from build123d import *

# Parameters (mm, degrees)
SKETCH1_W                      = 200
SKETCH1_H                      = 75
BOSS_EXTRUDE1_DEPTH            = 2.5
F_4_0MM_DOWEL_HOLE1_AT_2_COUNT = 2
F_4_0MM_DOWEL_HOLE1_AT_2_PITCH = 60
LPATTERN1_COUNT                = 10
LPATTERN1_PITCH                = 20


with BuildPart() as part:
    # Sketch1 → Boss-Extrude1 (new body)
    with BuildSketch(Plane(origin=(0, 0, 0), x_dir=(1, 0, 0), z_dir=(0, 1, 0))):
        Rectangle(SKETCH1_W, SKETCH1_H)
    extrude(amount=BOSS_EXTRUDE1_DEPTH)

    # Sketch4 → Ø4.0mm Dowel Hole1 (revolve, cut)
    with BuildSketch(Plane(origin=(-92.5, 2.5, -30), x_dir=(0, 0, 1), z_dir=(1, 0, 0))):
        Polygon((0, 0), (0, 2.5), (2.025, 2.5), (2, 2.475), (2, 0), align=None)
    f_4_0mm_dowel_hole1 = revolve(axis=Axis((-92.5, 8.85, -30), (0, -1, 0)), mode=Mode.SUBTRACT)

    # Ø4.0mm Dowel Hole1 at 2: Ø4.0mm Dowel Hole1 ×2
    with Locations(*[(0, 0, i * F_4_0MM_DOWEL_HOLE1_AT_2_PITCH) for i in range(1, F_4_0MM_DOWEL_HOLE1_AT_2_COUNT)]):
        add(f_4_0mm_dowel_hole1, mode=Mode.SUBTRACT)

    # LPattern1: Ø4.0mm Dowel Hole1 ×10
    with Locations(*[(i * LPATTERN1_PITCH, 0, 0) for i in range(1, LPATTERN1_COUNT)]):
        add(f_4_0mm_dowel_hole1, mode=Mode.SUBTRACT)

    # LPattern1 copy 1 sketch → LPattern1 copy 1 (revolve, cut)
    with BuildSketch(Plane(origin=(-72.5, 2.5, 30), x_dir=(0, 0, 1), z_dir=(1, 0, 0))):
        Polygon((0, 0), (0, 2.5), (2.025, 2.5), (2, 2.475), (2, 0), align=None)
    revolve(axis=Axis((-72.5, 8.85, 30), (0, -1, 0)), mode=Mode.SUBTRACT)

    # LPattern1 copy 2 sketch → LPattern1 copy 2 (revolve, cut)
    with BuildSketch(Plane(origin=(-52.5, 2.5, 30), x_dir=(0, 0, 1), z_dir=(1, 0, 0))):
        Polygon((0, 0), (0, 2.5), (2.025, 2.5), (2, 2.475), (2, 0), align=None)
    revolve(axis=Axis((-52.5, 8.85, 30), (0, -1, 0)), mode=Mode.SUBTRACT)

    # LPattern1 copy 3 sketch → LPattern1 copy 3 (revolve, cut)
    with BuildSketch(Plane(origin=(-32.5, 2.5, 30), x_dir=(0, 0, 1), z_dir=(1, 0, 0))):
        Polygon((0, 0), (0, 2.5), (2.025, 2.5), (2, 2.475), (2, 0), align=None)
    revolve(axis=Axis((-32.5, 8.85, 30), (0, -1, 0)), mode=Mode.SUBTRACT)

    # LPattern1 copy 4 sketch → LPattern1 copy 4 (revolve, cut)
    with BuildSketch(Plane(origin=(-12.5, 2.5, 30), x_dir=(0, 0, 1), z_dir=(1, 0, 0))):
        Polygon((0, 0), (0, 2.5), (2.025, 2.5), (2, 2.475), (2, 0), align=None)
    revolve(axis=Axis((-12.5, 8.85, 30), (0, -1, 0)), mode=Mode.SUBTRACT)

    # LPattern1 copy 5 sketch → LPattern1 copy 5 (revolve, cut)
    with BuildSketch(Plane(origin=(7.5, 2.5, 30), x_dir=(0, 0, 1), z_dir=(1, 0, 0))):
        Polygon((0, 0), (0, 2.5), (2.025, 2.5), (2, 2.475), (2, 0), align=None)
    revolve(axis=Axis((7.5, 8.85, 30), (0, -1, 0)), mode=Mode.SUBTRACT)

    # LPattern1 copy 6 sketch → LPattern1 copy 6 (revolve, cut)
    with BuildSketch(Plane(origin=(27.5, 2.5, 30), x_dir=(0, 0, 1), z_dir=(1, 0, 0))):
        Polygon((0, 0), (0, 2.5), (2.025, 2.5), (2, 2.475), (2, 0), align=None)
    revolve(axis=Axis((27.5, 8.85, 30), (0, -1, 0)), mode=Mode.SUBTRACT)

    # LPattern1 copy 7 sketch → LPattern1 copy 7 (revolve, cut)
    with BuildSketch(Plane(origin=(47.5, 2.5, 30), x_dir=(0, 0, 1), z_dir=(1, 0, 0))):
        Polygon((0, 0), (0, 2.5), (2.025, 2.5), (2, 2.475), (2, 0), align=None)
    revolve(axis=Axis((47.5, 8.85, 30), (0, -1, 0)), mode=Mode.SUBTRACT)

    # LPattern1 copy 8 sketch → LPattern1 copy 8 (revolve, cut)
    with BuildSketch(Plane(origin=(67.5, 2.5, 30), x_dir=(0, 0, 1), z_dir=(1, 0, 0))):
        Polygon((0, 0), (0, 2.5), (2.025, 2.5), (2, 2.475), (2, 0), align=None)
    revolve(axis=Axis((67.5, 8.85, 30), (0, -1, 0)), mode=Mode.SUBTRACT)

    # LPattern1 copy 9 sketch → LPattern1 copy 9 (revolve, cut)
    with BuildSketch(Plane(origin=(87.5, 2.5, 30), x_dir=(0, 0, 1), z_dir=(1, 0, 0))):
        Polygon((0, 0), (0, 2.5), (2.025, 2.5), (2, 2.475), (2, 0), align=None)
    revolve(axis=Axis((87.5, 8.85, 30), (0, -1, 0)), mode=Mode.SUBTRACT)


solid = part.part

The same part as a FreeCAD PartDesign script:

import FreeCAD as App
import Part
import Sketcher
from FreeCAD import Vector
Q = App.Units.Quantity

doc = App.newDocument("Part")
body = doc.addObject("PartDesign::Body", "Body")

# Sketch on XZ plane
sketch1 = body.newObject("Sketcher::SketchObject", "Sketch")
sketch1.AttachmentSupport = (doc.getObject("XZ_Plane"), [""])
sketch1.MapMode = "FlatFace"
sketch1.addGeometry([
    Part.LineSegment(Vector(-100, -37.5, 0), Vector(-100, 37.5, 0)),
    Part.LineSegment(Vector(-100, 37.5, 0), Vector(100, 37.5, 0)),
    Part.LineSegment(Vector(100, 37.5, 0), Vector(100, -37.5, 0)),
    Part.LineSegment(Vector(100, -37.5, 0), Vector(-100, -37.5, 0)),
], False)
sketch1.addConstraint([
    Sketcher.Constraint("Coincident", 0, 2, 1, 1),
    Sketcher.Constraint("Coincident", 1, 2, 2, 1),
    Sketcher.Constraint("Coincident", 2, 2, 3, 1),
    Sketcher.Constraint("Coincident", 3, 2, 0, 1),
    Sketcher.Constraint("Vertical", 0),
    Sketcher.Constraint("Horizontal", 1),
    Sketcher.Constraint("Vertical", 2),
    Sketcher.Constraint("Horizontal", 3),
    Sketcher.Constraint("Symmetric", 0, 2, 2, 2, -1, 1),
    Sketcher.Constraint("DistanceX", 1, 1, 1, 2, 200.0),
    Sketcher.Constraint("DistanceY", 0, 1, 0, 2, 75.0),
])
pad1 = body.newObject("PartDesign::Pad", "Pad")
pad1.Profile = sketch1
pad1.Length = 2.5
pad1.Reversed = True

# Sketch on YZ plane
sketch2 = body.newObject("Sketcher::SketchObject", "Sketch001")
sketch2.AttachmentSupport = (doc.getObject("YZ_Plane"), [""])
sketch2.MapMode = "FlatFace"
sketch2.AttachmentOffset = App.Placement(Vector(0, 0, -92.5), App.Rotation())
sketch2.addGeometry([
    Part.LineSegment(Vector(0, -30, 0), Vector(2.5, -30, 0)),  # 0
    Part.LineSegment(Vector(2.5, -30, 0), Vector(2.5, -28, 0)),  # 1
    Part.LineSegment(Vector(2.5, -28, 0), Vector(0.025, -28, 0)),  # 2
    Part.LineSegment(Vector(0.025, -28, 0), Vector(0, -27.975, 0)),  # 3
    Part.LineSegment(Vector(0, -27.975, 0), Vector(0, -30, 0)),  # 4
], False)
sketch2.addGeometry(Part.LineSegment(Vector(2.5, -30, 0), Vector(0, -30, 0)), True)  # axis
sketch2.addConstraint([
    Sketcher.Constraint("Coincident", 0, 2, 1, 1),
    Sketcher.Constraint("Coincident", 1, 2, 2, 1),
    Sketcher.Constraint("Coincident", 2, 2, 3, 1),
    Sketcher.Constraint("Coincident", 3, 2, 4, 1),
    Sketcher.Constraint("Coincident", 4, 2, 0, 1),
    Sketcher.Constraint("Horizontal", 0),
    Sketcher.Constraint("Vertical", 1),
    Sketcher.Constraint("Horizontal", 2),
    Sketcher.Constraint("Vertical", 4),
    Sketcher.Constraint("Horizontal", 5),
    Sketcher.Constraint("Coincident", 5, 1, 0, 2),
    Sketcher.Constraint("PointOnObject", 3, 2, -2),
    Sketcher.Constraint("PointOnObject", 5, 2, -2),
    Sketcher.Constraint("DistanceY", 1, 1, 1, 2, 2.0),
    Sketcher.Constraint("Angle", 3, Q("135 deg")),
    Sketcher.Constraint("DistanceX", 0, 1, 0, 2, 2.5),
    Sketcher.Constraint("DistanceY", 0, 2, -1, 1, 30.0),
    Sketcher.Constraint("DistanceX", 2, 2, 2, 1, 2.475),
])
groove = body.newObject("PartDesign::Groove", "Groove")
groove.Profile = sketch2
groove.ReferenceAxis = (sketch2, ["Axis0"])
groove.Angle = 360
doc.recompute()

linearpattern = body.newObject("PartDesign::LinearPattern", "LinearPattern")
linearpattern.Originals = [groove]
linearpattern.Direction = (doc.getObject("Z_Axis"), [""])
linearpattern.Mode = "offset"
linearpattern.Offset = 60
linearpattern.Occurrences = 2
body.Tip = linearpattern
doc.recompute()

linearpattern2 = body.newObject("PartDesign::LinearPattern", "LinearPattern001")
linearpattern2.Originals = [groove]
linearpattern2.Direction = (doc.getObject("X_Axis"), [""])
linearpattern2.Mode = "offset"
linearpattern2.Offset = 20
linearpattern2.Occurrences = 10
body.Tip = linearpattern2

# Sketch on YZ plane
sketch3 = body.newObject("Sketcher::SketchObject", "Sketch002")
sketch3.AttachmentSupport = (doc.getObject("YZ_Plane"), [""])
sketch3.MapMode = "FlatFace"
sketch3.AttachmentOffset = App.Placement(Vector(0, 0, -72.5), App.Rotation())
sketch3.addGeometry([
    Part.LineSegment(Vector(0, 30, 0), Vector(2.5, 30, 0)),  # 0
    Part.LineSegment(Vector(2.5, 30, 0), Vector(2.5, 32, 0)),  # 1
    Part.LineSegment(Vector(2.5, 32, 0), Vector(0.025, 32, 0)),  # 2
    Part.LineSegment(Vector(0.025, 32, 0), Vector(0, 32.025, 0)),  # 3
    Part.LineSegment(Vector(0, 32.025, 0), Vector(0, 30, 0)),  # 4
], False)
sketch3.addGeometry(Part.LineSegment(Vector(2.5, 30, 0), Vector(0, 30, 0)), True)  # axis
sketch3.addConstraint([
    Sketcher.Constraint("Coincident", 0, 2, 1, 1),
    Sketcher.Constraint("Coincident", 1, 2, 2, 1),
    Sketcher.Constraint("Coincident", 2, 2, 3, 1),
    Sketcher.Constraint("Coincident", 3, 2, 4, 1),
    Sketcher.Constraint("Coincident", 4, 2, 0, 1),
    Sketcher.Constraint("Horizontal", 0),
    Sketcher.Constraint("Vertical", 1),
    Sketcher.Constraint("Horizontal", 2),
    Sketcher.Constraint("Vertical", 4),
    Sketcher.Constraint("Horizontal", 5),
    Sketcher.Constraint("Coincident", 5, 1, 0, 2),
    Sketcher.Constraint("PointOnObject", 3, 2, -2),
    Sketcher.Constraint("PointOnObject", 5, 2, -2),
    Sketcher.Constraint("DistanceY", 1, 1, 1, 2, 2.0),
    Sketcher.Constraint("Angle", 3, Q("135 deg")),
    Sketcher.Constraint("DistanceX", 0, 1, 0, 2, 2.5),
    Sketcher.Constraint("DistanceY", -1, 1, 0, 2, 30.0),
    Sketcher.Constraint("DistanceX", 2, 2, 2, 1, 2.475),
])
groove2 = body.newObject("PartDesign::Groove", "Groove001")
groove2.Profile = sketch3
groove2.ReferenceAxis = (sketch3, ["Axis0"])
groove2.Angle = 360

# Sketch on YZ plane
sketch4 = body.newObject("Sketcher::SketchObject", "Sketch003")
sketch4.AttachmentSupport = (doc.getObject("YZ_Plane"), [""])
sketch4.MapMode = "FlatFace"
sketch4.AttachmentOffset = App.Placement(Vector(0, 0, -52.5), App.Rotation())
sketch4.addGeometry([
    Part.LineSegment(Vector(0, 30, 0), Vector(2.5, 30, 0)),  # 0
    Part.LineSegment(Vector(2.5, 30, 0), Vector(2.5, 32, 0)),  # 1
    Part.LineSegment(Vector(2.5, 32, 0), Vector(0.025, 32, 0)),  # 2
    Part.LineSegment(Vector(0.025, 32, 0), Vector(0, 32.025, 0)),  # 3
    Part.LineSegment(Vector(0, 32.025, 0), Vector(0, 30, 0)),  # 4
], False)
sketch4.addGeometry(Part.LineSegment(Vector(2.5, 30, 0), Vector(0, 30, 0)), True)  # axis
sketch4.addConstraint([
    Sketcher.Constraint("Coincident", 0, 2, 1, 1),
    Sketcher.Constraint("Coincident", 1, 2, 2, 1),
    Sketcher.Constraint("Coincident", 2, 2, 3, 1),
    Sketcher.Constraint("Coincident", 3, 2, 4, 1),
    Sketcher.Constraint("Coincident", 4, 2, 0, 1),
    Sketcher.Constraint("Horizontal", 0),
    Sketcher.Constraint("Vertical", 1),
    Sketcher.Constraint("Horizontal", 2),
    Sketcher.Constraint("Vertical", 4),
    Sketcher.Constraint("Horizontal", 5),
    Sketcher.Constraint("Coincident", 5, 1, 0, 2),
    Sketcher.Constraint("PointOnObject", 3, 2, -2),
    Sketcher.Constraint("PointOnObject", 5, 2, -2),
    Sketcher.Constraint("DistanceY", 1, 1, 1, 2, 2.0),
    Sketcher.Constraint("Angle", 3, Q("135 deg")),
    Sketcher.Constraint("DistanceX", 0, 1, 0, 2, 2.5),
    Sketcher.Constraint("DistanceY", -1, 1, 0, 2, 30.0),
    Sketcher.Constraint("DistanceX", 2, 2, 2, 1, 2.475),
])
groove3 = body.newObject("PartDesign::Groove", "Groove002")
groove3.Profile = sketch4
groove3.ReferenceAxis = (sketch4, ["Axis0"])
groove3.Angle = 360

# Sketch on YZ plane
sketch5 = body.newObject("Sketcher::SketchObject", "Sketch004")
sketch5.AttachmentSupport = (doc.getObject("YZ_Plane"), [""])
sketch5.MapMode = "FlatFace"
sketch5.AttachmentOffset = App.Placement(Vector(0, 0, -32.5), App.Rotation())
sketch5.addGeometry([
    Part.LineSegment(Vector(0, 30, 0), Vector(2.5, 30, 0)),  # 0
    Part.LineSegment(Vector(2.5, 30, 0), Vector(2.5, 32, 0)),  # 1
    Part.LineSegment(Vector(2.5, 32, 0), Vector(0.025, 32, 0)),  # 2
    Part.LineSegment(Vector(0.025, 32, 0), Vector(0, 32.025, 0)),  # 3
    Part.LineSegment(Vector(0, 32.025, 0), Vector(0, 30, 0)),  # 4
], False)
sketch5.addGeometry(Part.LineSegment(Vector(2.5, 30, 0), Vector(0, 30, 0)), True)  # axis
sketch5.addConstraint([
    Sketcher.Constraint("Coincident", 0, 2, 1, 1),
    Sketcher.Constraint("Coincident", 1, 2, 2, 1),
    Sketcher.Constraint("Coincident", 2, 2, 3, 1),
    Sketcher.Constraint("Coincident", 3, 2, 4, 1),
    Sketcher.Constraint("Coincident", 4, 2, 0, 1),
    Sketcher.Constraint("Horizontal", 0),
    Sketcher.Constraint("Vertical", 1),
    Sketcher.Constraint("Horizontal", 2),
    Sketcher.Constraint("Vertical", 4),
    Sketcher.Constraint("Horizontal", 5),
    Sketcher.Constraint("Coincident", 5, 1, 0, 2),
    Sketcher.Constraint("PointOnObject", 3, 2, -2),
    Sketcher.Constraint("PointOnObject", 5, 2, -2),
    Sketcher.Constraint("DistanceY", 1, 1, 1, 2, 2.0),
    Sketcher.Constraint("Angle", 3, Q("135 deg")),
    Sketcher.Constraint("DistanceX", 0, 1, 0, 2, 2.5),
    Sketcher.Constraint("DistanceY", -1, 1, 0, 2, 30.0),
    Sketcher.Constraint("DistanceX", 2, 2, 2, 1, 2.475),
])
groove4 = body.newObject("PartDesign::Groove", "Groove003")
groove4.Profile = sketch5
groove4.ReferenceAxis = (sketch5, ["Axis0"])
groove4.Angle = 360

# Sketch on YZ plane
sketch6 = body.newObject("Sketcher::SketchObject", "Sketch005")
sketch6.AttachmentSupport = (doc.getObject("YZ_Plane"), [""])
sketch6.MapMode = "FlatFace"
sketch6.AttachmentOffset = App.Placement(Vector(0, 0, -12.5), App.Rotation())
sketch6.addGeometry([
    Part.LineSegment(Vector(0, 30, 0), Vector(2.5, 30, 0)),  # 0
    Part.LineSegment(Vector(2.5, 30, 0), Vector(2.5, 32, 0)),  # 1
    Part.LineSegment(Vector(2.5, 32, 0), Vector(0.025, 32, 0)),  # 2
    Part.LineSegment(Vector(0.025, 32, 0), Vector(0, 32.025, 0)),  # 3
    Part.LineSegment(Vector(0, 32.025, 0), Vector(0, 30, 0)),  # 4
], False)
sketch6.addGeometry(Part.LineSegment(Vector(2.5, 30, 0), Vector(0, 30, 0)), True)  # axis
sketch6.addConstraint([
    Sketcher.Constraint("Coincident", 0, 2, 1, 1),
    Sketcher.Constraint("Coincident", 1, 2, 2, 1),
    Sketcher.Constraint("Coincident", 2, 2, 3, 1),
    Sketcher.Constraint("Coincident", 3, 2, 4, 1),
    Sketcher.Constraint("Coincident", 4, 2, 0, 1),
    Sketcher.Constraint("Horizontal", 0),
    Sketcher.Constraint("Vertical", 1),
    Sketcher.Constraint("Horizontal", 2),
    Sketcher.Constraint("Vertical", 4),
    Sketcher.Constraint("Horizontal", 5),
    Sketcher.Constraint("Coincident", 5, 1, 0, 2),
    Sketcher.Constraint("PointOnObject", 3, 2, -2),
    Sketcher.Constraint("PointOnObject", 5, 2, -2),
    Sketcher.Constraint("DistanceY", 1, 1, 1, 2, 2.0),
    Sketcher.Constraint("Angle", 3, Q("135 deg")),
    Sketcher.Constraint("DistanceX", 0, 1, 0, 2, 2.5),
    Sketcher.Constraint("DistanceY", -1, 1, 0, 2, 30.0),
    Sketcher.Constraint("DistanceX", 2, 2, 2, 1, 2.475),
])
groove5 = body.newObject("PartDesign::Groove", "Groove004")
groove5.Profile = sketch6
groove5.ReferenceAxis = (sketch6, ["Axis0"])
groove5.Angle = 360

# Sketch on YZ plane
sketch7 = body.newObject("Sketcher::SketchObject", "Sketch006")
sketch7.AttachmentSupport = (doc.getObject("YZ_Plane"), [""])
sketch7.MapMode = "FlatFace"
sketch7.AttachmentOffset = App.Placement(Vector(0, 0, 7.5), App.Rotation())
sketch7.addGeometry([
    Part.LineSegment(Vector(0, 30, 0), Vector(2.5, 30, 0)),  # 0
    Part.LineSegment(Vector(2.5, 30, 0), Vector(2.5, 32, 0)),  # 1
    Part.LineSegment(Vector(2.5, 32, 0), Vector(0.025, 32, 0)),  # 2
    Part.LineSegment(Vector(0.025, 32, 0), Vector(0, 32.025, 0)),  # 3
    Part.LineSegment(Vector(0, 32.025, 0), Vector(0, 30, 0)),  # 4
], False)
sketch7.addGeometry(Part.LineSegment(Vector(2.5, 30, 0), Vector(0, 30, 0)), True)  # axis
sketch7.addConstraint([
    Sketcher.Constraint("Coincident", 0, 2, 1, 1),
    Sketcher.Constraint("Coincident", 1, 2, 2, 1),
    Sketcher.Constraint("Coincident", 2, 2, 3, 1),
    Sketcher.Constraint("Coincident", 3, 2, 4, 1),
    Sketcher.Constraint("Coincident", 4, 2, 0, 1),
    Sketcher.Constraint("Horizontal", 0),
    Sketcher.Constraint("Vertical", 1),
    Sketcher.Constraint("Horizontal", 2),
    Sketcher.Constraint("Vertical", 4),
    Sketcher.Constraint("Horizontal", 5),
    Sketcher.Constraint("Coincident", 5, 1, 0, 2),
    Sketcher.Constraint("PointOnObject", 3, 2, -2),
    Sketcher.Constraint("PointOnObject", 5, 2, -2),
    Sketcher.Constraint("DistanceY", 1, 1, 1, 2, 2.0),
    Sketcher.Constraint("Angle", 3, Q("135 deg")),
    Sketcher.Constraint("DistanceX", 0, 1, 0, 2, 2.5),
    Sketcher.Constraint("DistanceY", -1, 1, 0, 2, 30.0),
    Sketcher.Constraint("DistanceX", 2, 2, 2, 1, 2.475),
])
groove6 = body.newObject("PartDesign::Groove", "Groove005")
groove6.Profile = sketch7
groove6.ReferenceAxis = (sketch7, ["Axis0"])
groove6.Angle = 360

# Sketch on YZ plane
sketch8 = body.newObject("Sketcher::SketchObject", "Sketch007")
sketch8.AttachmentSupport = (doc.getObject("YZ_Plane"), [""])
sketch8.MapMode = "FlatFace"
sketch8.AttachmentOffset = App.Placement(Vector(0, 0, 27.5), App.Rotation())
sketch8.addGeometry([
    Part.LineSegment(Vector(0, 30, 0), Vector(2.5, 30, 0)),  # 0
    Part.LineSegment(Vector(2.5, 30, 0), Vector(2.5, 32, 0)),  # 1
    Part.LineSegment(Vector(2.5, 32, 0), Vector(0.025, 32, 0)),  # 2
    Part.LineSegment(Vector(0.025, 32, 0), Vector(0, 32.025, 0)),  # 3
    Part.LineSegment(Vector(0, 32.025, 0), Vector(0, 30, 0)),  # 4
], False)
sketch8.addGeometry(Part.LineSegment(Vector(2.5, 30, 0), Vector(0, 30, 0)), True)  # axis
sketch8.addConstraint([
    Sketcher.Constraint("Coincident", 0, 2, 1, 1),
    Sketcher.Constraint("Coincident", 1, 2, 2, 1),
    Sketcher.Constraint("Coincident", 2, 2, 3, 1),
    Sketcher.Constraint("Coincident", 3, 2, 4, 1),
    Sketcher.Constraint("Coincident", 4, 2, 0, 1),
    Sketcher.Constraint("Horizontal", 0),
    Sketcher.Constraint("Vertical", 1),
    Sketcher.Constraint("Horizontal", 2),
    Sketcher.Constraint("Vertical", 4),
    Sketcher.Constraint("Horizontal", 5),
    Sketcher.Constraint("Coincident", 5, 1, 0, 2),
    Sketcher.Constraint("PointOnObject", 3, 2, -2),
    Sketcher.Constraint("PointOnObject", 5, 2, -2),
    Sketcher.Constraint("DistanceY", 1, 1, 1, 2, 2.0),
    Sketcher.Constraint("Angle", 3, Q("135 deg")),
    Sketcher.Constraint("DistanceX", 0, 1, 0, 2, 2.5),
    Sketcher.Constraint("DistanceY", -1, 1, 0, 2, 30.0),
    Sketcher.Constraint("DistanceX", 2, 2, 2, 1, 2.475),
])
groove7 = body.newObject("PartDesign::Groove", "Groove006")
groove7.Profile = sketch8
groove7.ReferenceAxis = (sketch8, ["Axis0"])
groove7.Angle = 360

# Sketch on YZ plane
sketch9 = body.newObject("Sketcher::SketchObject", "Sketch008")
sketch9.AttachmentSupport = (doc.getObject("YZ_Plane"), [""])
sketch9.MapMode = "FlatFace"
sketch9.AttachmentOffset = App.Placement(Vector(0, 0, 47.5), App.Rotation())
sketch9.addGeometry([
    Part.LineSegment(Vector(0, 30, 0), Vector(2.5, 30, 0)),  # 0
    Part.LineSegment(Vector(2.5, 30, 0), Vector(2.5, 32, 0)),  # 1
    Part.LineSegment(Vector(2.5, 32, 0), Vector(0.025, 32, 0)),  # 2
    Part.LineSegment(Vector(0.025, 32, 0), Vector(0, 32.025, 0)),  # 3
    Part.LineSegment(Vector(0, 32.025, 0), Vector(0, 30, 0)),  # 4
], False)
sketch9.addGeometry(Part.LineSegment(Vector(2.5, 30, 0), Vector(0, 30, 0)), True)  # axis
sketch9.addConstraint([
    Sketcher.Constraint("Coincident", 0, 2, 1, 1),
    Sketcher.Constraint("Coincident", 1, 2, 2, 1),
    Sketcher.Constraint("Coincident", 2, 2, 3, 1),
    Sketcher.Constraint("Coincident", 3, 2, 4, 1),
    Sketcher.Constraint("Coincident", 4, 2, 0, 1),
    Sketcher.Constraint("Horizontal", 0),
    Sketcher.Constraint("Vertical", 1),
    Sketcher.Constraint("Horizontal", 2),
    Sketcher.Constraint("Vertical", 4),
    Sketcher.Constraint("Horizontal", 5),
    Sketcher.Constraint("Coincident", 5, 1, 0, 2),
    Sketcher.Constraint("PointOnObject", 3, 2, -2),
    Sketcher.Constraint("PointOnObject", 5, 2, -2),
    Sketcher.Constraint("DistanceY", 1, 1, 1, 2, 2.0),
    Sketcher.Constraint("Angle", 3, Q("135 deg")),
    Sketcher.Constraint("DistanceX", 0, 1, 0, 2, 2.5),
    Sketcher.Constraint("DistanceY", -1, 1, 0, 2, 30.0),
    Sketcher.Constraint("DistanceX", 2, 2, 2, 1, 2.475),
])
groove8 = body.newObject("PartDesign::Groove", "Groove007")
groove8.Profile = sketch9
groove8.ReferenceAxis = (sketch9, ["Axis0"])
groove8.Angle = 360

# Sketch on YZ plane
sketch10 = body.newObject("Sketcher::SketchObject", "Sketch009")
sketch10.AttachmentSupport = (doc.getObject("YZ_Plane"), [""])
sketch10.MapMode = "FlatFace"
sketch10.AttachmentOffset = App.Placement(Vector(0, 0, 67.5), App.Rotation())
sketch10.addGeometry([
    Part.LineSegment(Vector(0, 30, 0), Vector(2.5, 30, 0)),  # 0
    Part.LineSegment(Vector(2.5, 30, 0), Vector(2.5, 32, 0)),  # 1
    Part.LineSegment(Vector(2.5, 32, 0), Vector(0.025, 32, 0)),  # 2
    Part.LineSegment(Vector(0.025, 32, 0), Vector(0, 32.025, 0)),  # 3
    Part.LineSegment(Vector(0, 32.025, 0), Vector(0, 30, 0)),  # 4
], False)
sketch10.addGeometry(Part.LineSegment(Vector(2.5, 30, 0), Vector(0, 30, 0)), True)  # axis
sketch10.addConstraint([
    Sketcher.Constraint("Coincident", 0, 2, 1, 1),
    Sketcher.Constraint("Coincident", 1, 2, 2, 1),
    Sketcher.Constraint("Coincident", 2, 2, 3, 1),
    Sketcher.Constraint("Coincident", 3, 2, 4, 1),
    Sketcher.Constraint("Coincident", 4, 2, 0, 1),
    Sketcher.Constraint("Horizontal", 0),
    Sketcher.Constraint("Vertical", 1),
    Sketcher.Constraint("Horizontal", 2),
    Sketcher.Constraint("Vertical", 4),
    Sketcher.Constraint("Horizontal", 5),
    Sketcher.Constraint("Coincident", 5, 1, 0, 2),
    Sketcher.Constraint("PointOnObject", 3, 2, -2),
    Sketcher.Constraint("PointOnObject", 5, 2, -2),
    Sketcher.Constraint("DistanceY", 1, 1, 1, 2, 2.0),
    Sketcher.Constraint("Angle", 3, Q("135 deg")),
    Sketcher.Constraint("DistanceX", 0, 1, 0, 2, 2.5),
    Sketcher.Constraint("DistanceY", -1, 1, 0, 2, 30.0),
    Sketcher.Constraint("DistanceX", 2, 2, 2, 1, 2.475),
])
groove9 = body.newObject("PartDesign::Groove", "Groove008")
groove9.Profile = sketch10
groove9.ReferenceAxis = (sketch10, ["Axis0"])
groove9.Angle = 360

# Sketch on YZ plane
sketch11 = body.newObject("Sketcher::SketchObject", "Sketch010")
sketch11.AttachmentSupport = (doc.getObject("YZ_Plane"), [""])
sketch11.MapMode = "FlatFace"
sketch11.AttachmentOffset = App.Placement(Vector(0, 0, 87.5), App.Rotation())
sketch11.addGeometry([
    Part.LineSegment(Vector(0, 30, 0), Vector(2.5, 30, 0)),  # 0
    Part.LineSegment(Vector(2.5, 30, 0), Vector(2.5, 32, 0)),  # 1
    Part.LineSegment(Vector(2.5, 32, 0), Vector(0.025, 32, 0)),  # 2
    Part.LineSegment(Vector(0.025, 32, 0), Vector(0, 32.025, 0)),  # 3
    Part.LineSegment(Vector(0, 32.025, 0), Vector(0, 30, 0)),  # 4
], False)
sketch11.addGeometry(Part.LineSegment(Vector(2.5, 30, 0), Vector(0, 30, 0)), True)  # axis
sketch11.addConstraint([
    Sketcher.Constraint("Coincident", 0, 2, 1, 1),
    Sketcher.Constraint("Coincident", 1, 2, 2, 1),
    Sketcher.Constraint("Coincident", 2, 2, 3, 1),
    Sketcher.Constraint("Coincident", 3, 2, 4, 1),
    Sketcher.Constraint("Coincident", 4, 2, 0, 1),
    Sketcher.Constraint("Horizontal", 0),
    Sketcher.Constraint("Vertical", 1),
    Sketcher.Constraint("Horizontal", 2),
    Sketcher.Constraint("Vertical", 4),
    Sketcher.Constraint("Horizontal", 5),
    Sketcher.Constraint("Coincident", 5, 1, 0, 2),
    Sketcher.Constraint("PointOnObject", 3, 2, -2),
    Sketcher.Constraint("PointOnObject", 5, 2, -2),
    Sketcher.Constraint("DistanceY", 1, 1, 1, 2, 2.0),
    Sketcher.Constraint("Angle", 3, Q("135 deg")),
    Sketcher.Constraint("DistanceX", 0, 1, 0, 2, 2.5),
    Sketcher.Constraint("DistanceY", -1, 1, 0, 2, 30.0),
    Sketcher.Constraint("DistanceX", 2, 2, 2, 1, 2.475),
])
groove10 = body.newObject("PartDesign::Groove", "Groove009")
groove10.Profile = sketch11
groove10.ReferenceAxis = (sketch11, ["Axis0"])
groove10.Angle = 360

doc.recompute()
